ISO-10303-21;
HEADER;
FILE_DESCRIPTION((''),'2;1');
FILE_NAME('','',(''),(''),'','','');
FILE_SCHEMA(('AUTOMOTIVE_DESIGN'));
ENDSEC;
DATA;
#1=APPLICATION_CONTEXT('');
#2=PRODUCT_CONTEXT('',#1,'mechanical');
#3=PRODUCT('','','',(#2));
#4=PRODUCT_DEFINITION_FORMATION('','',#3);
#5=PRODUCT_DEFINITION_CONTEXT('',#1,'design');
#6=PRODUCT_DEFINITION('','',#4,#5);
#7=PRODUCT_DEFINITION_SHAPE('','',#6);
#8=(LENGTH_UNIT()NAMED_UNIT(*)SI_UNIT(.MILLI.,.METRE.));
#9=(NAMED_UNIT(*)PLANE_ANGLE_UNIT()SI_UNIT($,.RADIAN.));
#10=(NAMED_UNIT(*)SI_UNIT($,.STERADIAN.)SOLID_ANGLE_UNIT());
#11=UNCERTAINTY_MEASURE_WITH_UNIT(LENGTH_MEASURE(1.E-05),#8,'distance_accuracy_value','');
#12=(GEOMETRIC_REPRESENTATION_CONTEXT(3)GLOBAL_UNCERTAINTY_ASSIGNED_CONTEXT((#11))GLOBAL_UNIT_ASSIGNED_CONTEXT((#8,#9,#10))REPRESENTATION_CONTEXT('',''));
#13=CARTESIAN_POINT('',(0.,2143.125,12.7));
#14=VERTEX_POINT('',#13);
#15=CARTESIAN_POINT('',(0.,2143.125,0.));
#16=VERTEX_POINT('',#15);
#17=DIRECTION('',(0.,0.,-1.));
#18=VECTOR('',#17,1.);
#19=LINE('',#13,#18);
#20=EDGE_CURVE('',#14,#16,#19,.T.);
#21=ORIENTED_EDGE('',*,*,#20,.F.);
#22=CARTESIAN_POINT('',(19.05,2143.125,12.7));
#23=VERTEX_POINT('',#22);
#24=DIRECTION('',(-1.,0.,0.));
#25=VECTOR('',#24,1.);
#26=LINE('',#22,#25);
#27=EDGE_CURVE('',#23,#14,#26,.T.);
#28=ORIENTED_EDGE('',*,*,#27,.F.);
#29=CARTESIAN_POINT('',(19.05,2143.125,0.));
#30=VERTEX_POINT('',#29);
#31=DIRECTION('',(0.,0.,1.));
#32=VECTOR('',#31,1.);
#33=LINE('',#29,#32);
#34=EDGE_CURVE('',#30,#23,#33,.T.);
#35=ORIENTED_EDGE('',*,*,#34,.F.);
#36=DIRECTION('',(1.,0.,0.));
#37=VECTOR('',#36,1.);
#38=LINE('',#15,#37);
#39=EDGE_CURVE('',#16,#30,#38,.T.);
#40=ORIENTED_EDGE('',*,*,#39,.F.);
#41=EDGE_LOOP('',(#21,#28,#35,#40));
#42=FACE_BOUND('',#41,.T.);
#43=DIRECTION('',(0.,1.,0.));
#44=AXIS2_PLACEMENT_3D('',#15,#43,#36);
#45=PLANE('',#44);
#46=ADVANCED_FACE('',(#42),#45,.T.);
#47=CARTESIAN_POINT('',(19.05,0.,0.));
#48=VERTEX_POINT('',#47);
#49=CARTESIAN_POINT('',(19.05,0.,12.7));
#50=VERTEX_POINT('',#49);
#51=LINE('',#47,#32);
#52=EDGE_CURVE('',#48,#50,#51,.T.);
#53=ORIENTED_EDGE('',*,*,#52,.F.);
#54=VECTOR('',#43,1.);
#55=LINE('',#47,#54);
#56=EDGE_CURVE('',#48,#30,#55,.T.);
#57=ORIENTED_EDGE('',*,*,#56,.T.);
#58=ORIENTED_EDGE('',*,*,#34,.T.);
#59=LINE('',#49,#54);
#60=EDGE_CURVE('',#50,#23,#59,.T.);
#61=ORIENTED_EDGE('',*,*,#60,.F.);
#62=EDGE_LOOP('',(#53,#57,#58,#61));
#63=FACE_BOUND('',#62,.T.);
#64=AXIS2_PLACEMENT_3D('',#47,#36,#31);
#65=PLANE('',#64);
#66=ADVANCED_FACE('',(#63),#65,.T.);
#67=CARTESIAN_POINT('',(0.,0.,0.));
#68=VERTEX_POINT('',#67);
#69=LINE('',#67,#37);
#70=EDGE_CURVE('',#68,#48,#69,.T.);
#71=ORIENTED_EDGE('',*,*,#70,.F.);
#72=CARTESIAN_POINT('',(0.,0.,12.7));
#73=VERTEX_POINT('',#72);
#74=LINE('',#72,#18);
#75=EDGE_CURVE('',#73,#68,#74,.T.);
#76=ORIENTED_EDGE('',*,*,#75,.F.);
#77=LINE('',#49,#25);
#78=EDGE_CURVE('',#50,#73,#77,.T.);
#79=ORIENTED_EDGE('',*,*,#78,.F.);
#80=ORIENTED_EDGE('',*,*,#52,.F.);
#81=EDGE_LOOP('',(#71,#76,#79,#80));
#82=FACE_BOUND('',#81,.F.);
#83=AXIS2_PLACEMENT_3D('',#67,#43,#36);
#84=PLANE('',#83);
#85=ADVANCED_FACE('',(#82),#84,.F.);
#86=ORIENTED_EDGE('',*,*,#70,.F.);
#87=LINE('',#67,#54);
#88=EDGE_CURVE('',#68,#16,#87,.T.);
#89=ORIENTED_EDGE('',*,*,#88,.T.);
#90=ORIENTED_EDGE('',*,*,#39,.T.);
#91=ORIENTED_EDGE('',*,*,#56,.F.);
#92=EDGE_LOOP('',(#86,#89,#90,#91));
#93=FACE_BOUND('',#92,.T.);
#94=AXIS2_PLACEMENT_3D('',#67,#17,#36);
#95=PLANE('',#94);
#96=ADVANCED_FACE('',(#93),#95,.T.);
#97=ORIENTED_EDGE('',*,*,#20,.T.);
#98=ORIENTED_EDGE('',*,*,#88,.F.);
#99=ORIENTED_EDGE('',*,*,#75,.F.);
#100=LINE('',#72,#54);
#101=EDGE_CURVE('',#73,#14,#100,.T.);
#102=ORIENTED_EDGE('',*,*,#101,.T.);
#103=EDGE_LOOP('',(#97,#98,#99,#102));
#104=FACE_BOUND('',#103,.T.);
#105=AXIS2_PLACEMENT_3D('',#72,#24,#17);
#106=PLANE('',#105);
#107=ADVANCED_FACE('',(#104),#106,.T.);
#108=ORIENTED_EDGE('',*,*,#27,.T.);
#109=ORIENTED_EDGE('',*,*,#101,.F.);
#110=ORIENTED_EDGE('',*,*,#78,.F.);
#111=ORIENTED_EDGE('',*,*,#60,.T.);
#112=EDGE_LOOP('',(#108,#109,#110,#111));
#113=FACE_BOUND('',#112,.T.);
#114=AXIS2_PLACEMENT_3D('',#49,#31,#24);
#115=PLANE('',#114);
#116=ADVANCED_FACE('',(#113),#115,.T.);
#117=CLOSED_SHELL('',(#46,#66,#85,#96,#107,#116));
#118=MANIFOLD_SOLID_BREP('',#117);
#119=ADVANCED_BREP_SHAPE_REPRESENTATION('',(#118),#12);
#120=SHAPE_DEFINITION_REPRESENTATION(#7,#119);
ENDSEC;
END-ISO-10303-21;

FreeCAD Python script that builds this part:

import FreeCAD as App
import Part
import Sketcher
Q = App.Units.Quantity

doc = App.newDocument("Part")
body = doc.addObject("PartDesign::Body", "Body")

sketch1 = doc.addObject("Sketcher::SketchObject", "Sketch")
body.addObject(sketch1)
sketch1.AttachmentSupport = (doc.XZ_Plane, [""])
sketch1.MapMode = "FlatFace"
sketch1.addGeometry([
    Part.LineSegment(App.Vector(19, 0, 0), App.Vector(0, 0, 0)),
    Part.LineSegment(App.Vector(0, 0, 0), App.Vector(0, 13, 0)),
    Part.LineSegment(App.Vector(0, 13, 0), App.Vector(19, 13, 0)),
    Part.LineSegment(App.Vector(19, 13, 0), App.Vector(19, 0, 0)),
], False)
sketch1.addConstraint([
    Sketcher.Constraint("Coincident", 0, 2, 1, 1),
    Sketcher.Constraint("Coincident", 1, 2, 2, 1),
    Sketcher.Constraint("Coincident", 2, 2, 3, 1),
    Sketcher.Constraint("Coincident", 3, 2, 0, 1),
    Sketcher.Constraint("Horizontal", 0),
    Sketcher.Constraint("Vertical", 1),
    Sketcher.Constraint("Horizontal", 2),
    Sketcher.Constraint("Vertical", 3),
    Sketcher.Constraint("Coincident", 0, 2, -1, 1),
    Sketcher.Constraint("DistanceY", 1, 1, 1, 2, Q("0.5 in")),
    Sketcher.Constraint("DistanceX", 0, 2, 0, 1, Q("0.75 in")),
])
pad1 = doc.addObject("PartDesign::Pad", "Pad")
body.addObject(pad1)
pad1.Profile = sketch1
pad1.Length = Q("84.375 in")
pad1.Reversed = True

doc.recompute()
